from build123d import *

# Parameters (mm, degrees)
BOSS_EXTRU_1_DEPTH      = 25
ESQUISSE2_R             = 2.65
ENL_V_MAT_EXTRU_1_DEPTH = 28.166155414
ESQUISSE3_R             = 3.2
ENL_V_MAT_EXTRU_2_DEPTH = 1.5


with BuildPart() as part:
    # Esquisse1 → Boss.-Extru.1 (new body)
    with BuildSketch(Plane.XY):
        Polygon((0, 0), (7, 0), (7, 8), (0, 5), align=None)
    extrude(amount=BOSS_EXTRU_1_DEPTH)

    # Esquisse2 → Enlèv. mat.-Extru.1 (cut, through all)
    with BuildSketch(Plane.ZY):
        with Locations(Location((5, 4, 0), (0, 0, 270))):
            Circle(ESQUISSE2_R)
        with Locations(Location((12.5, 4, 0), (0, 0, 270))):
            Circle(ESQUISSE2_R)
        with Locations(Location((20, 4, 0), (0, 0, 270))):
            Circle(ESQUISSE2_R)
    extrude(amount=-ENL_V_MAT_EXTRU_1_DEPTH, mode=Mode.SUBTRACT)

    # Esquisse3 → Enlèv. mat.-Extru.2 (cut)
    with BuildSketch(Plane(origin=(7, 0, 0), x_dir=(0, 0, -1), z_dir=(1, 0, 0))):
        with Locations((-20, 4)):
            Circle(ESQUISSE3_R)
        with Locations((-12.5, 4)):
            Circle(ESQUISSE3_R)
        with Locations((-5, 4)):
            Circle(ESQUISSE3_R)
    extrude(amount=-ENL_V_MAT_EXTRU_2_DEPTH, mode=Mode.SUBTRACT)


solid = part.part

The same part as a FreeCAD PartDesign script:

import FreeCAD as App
import Part
import Sketcher
from FreeCAD import Vector

doc = App.newDocument("Part")
body = doc.addObject("PartDesign::Body", "Body")

# Sketch on XY plane
sketch1 = body.newObject("Sketcher::SketchObject", "Sketch")
sketch1.AttachmentSupport = (doc.getObject("XY_Plane"), [""])
sketch1.MapMode = "FlatFace"
sketch1.addGeometry([
    Part.LineSegment(Vector(0, 0, 0), Vector(7, 0, 0)),
    Part.LineSegment(Vector(7, 0, 0), Vector(7, 8, 0)),
    Part.LineSegment(Vector(7, 8, 0), Vector(0, 5, 0)),
    Part.LineSegment(Vector(0, 5, 0), Vector(0, 0, 0)),
], False)
sketch1.addConstraint([
    Sketcher.Constraint("Coincident", 0, 2, 1, 1),
    Sketcher.Constraint("Coincident", 1, 2, 2, 1),
    Sketcher.Constraint("Coincident", 2, 2, 3, 1),
    Sketcher.Constraint("Coincident", 3, 2, 0, 1),
    Sketcher.Constraint("Horizontal", 0),
    Sketcher.Constraint("Vertical", 1),
    Sketcher.Constraint("Vertical", 3),
    Sketcher.Constraint("Coincident", 3, 2, -1, 1),
    Sketcher.Constraint("DistanceX", 0, 1, 0, 2, 7.0),
    Sketcher.Constraint("DistanceY", 1, 1, 1, 2, 8.0),
    Sketcher.Constraint("DistanceY", 3, 2, 3, 1, 5.0),
])
pad1 = body.newObject("PartDesign::Pad", "Pad")
pad1.Profile = sketch1
pad1.Length = 25

# Sketch on YZ plane
sketch2 = body.newObject("Sketcher::SketchObject", "Sketch001")
sketch2.AttachmentSupport = (doc.getObject("YZ_Plane"), [""])
sketch2.MapMode = "FlatFace"
sketch2.addGeometry([
    Part.Circle(Vector(4, 5, 0), Vector(0, 0, 1), 2.65),
    Part.Circle(Vector(4, 12.5, 0), Vector(0, 0, 1), 2.65),
    Part.Circle(Vector(4, 20, 0), Vector(0, 0, 1), 2.65),
], False)
sketch2.addConstraint([
    Sketcher.Constraint("Equal", 0, 1),
    Sketcher.Constraint("Equal", 1, 2),
    Sketcher.Constraint("Vertical", 0, 3, 1, 3),
    Sketcher.Constraint("Vertical", 1, 3, 2, 3),
    Sketcher.Constraint("Diameter", 0, 5.3),
    Sketcher.Constraint("DistanceX", -1, 1, 0, 3, 4.0),
    Sketcher.Constraint("DistanceY", -1, 1, 0, 3, 5.0),
    Sketcher.Constraint("DistanceY", -1, 1, 2, 3, 20.0),
    Sketcher.Constraint("DistanceY", -1, 1, 1, 3, 12.5),
])
pocket1 = body.newObject("PartDesign::Pocket", "Pocket")
pocket1.Profile = sketch2
pocket1.Type = "ThroughAll"
pocket1.Reversed = True

# Sketch on YZ plane
sketch3 = body.newObject("Sketcher::SketchObject", "Sketch002")
sketch3.AttachmentSupport = (doc.getObject("YZ_Plane"), [""])
sketch3.MapMode = "FlatFace"
sketch3.AttachmentOffset = App.Placement(Vector(0, 0, 7), App.Rotation())
sketch3.addGeometry([
    Part.Circle(Vector(4, 20, 0), Vector(0, 0, 1), 3.2),
    Part.Circle(Vector(4, 12.5, 0), Vector(0, 0, 1), 3.2),
    Part.Circle(Vector(4, 5, 0), Vector(0, 0, 1), 3.2),
], False)
sketch3.addConstraint([
    Sketcher.Constraint("Equal", 0, 1),
    Sketcher.Constraint("Equal", 1, 2),
    Sketcher.Constraint("Vertical", 0, 3, 1, 3),
    Sketcher.Constraint("Vertical", 1, 3, 2, 3),
    Sketcher.Constraint("Diameter", 0, 6.4),
    Sketcher.Constraint("DistanceX", -1, 1, 0, 3, 4.0),
    Sketcher.Constraint("DistanceY", -1, 1, 0, 3, 20.0),
    Sketcher.Constraint("DistanceY", -1, 1, 2, 3, 5.0),
    Sketcher.Constraint("DistanceY", -1, 1, 1, 3, 12.5),
])
pocket2 = body.newObject("PartDesign::Pocket", "Pocket001")
pocket2.Profile = sketch3
pocket2.Length = 1.5

doc.recompute()
